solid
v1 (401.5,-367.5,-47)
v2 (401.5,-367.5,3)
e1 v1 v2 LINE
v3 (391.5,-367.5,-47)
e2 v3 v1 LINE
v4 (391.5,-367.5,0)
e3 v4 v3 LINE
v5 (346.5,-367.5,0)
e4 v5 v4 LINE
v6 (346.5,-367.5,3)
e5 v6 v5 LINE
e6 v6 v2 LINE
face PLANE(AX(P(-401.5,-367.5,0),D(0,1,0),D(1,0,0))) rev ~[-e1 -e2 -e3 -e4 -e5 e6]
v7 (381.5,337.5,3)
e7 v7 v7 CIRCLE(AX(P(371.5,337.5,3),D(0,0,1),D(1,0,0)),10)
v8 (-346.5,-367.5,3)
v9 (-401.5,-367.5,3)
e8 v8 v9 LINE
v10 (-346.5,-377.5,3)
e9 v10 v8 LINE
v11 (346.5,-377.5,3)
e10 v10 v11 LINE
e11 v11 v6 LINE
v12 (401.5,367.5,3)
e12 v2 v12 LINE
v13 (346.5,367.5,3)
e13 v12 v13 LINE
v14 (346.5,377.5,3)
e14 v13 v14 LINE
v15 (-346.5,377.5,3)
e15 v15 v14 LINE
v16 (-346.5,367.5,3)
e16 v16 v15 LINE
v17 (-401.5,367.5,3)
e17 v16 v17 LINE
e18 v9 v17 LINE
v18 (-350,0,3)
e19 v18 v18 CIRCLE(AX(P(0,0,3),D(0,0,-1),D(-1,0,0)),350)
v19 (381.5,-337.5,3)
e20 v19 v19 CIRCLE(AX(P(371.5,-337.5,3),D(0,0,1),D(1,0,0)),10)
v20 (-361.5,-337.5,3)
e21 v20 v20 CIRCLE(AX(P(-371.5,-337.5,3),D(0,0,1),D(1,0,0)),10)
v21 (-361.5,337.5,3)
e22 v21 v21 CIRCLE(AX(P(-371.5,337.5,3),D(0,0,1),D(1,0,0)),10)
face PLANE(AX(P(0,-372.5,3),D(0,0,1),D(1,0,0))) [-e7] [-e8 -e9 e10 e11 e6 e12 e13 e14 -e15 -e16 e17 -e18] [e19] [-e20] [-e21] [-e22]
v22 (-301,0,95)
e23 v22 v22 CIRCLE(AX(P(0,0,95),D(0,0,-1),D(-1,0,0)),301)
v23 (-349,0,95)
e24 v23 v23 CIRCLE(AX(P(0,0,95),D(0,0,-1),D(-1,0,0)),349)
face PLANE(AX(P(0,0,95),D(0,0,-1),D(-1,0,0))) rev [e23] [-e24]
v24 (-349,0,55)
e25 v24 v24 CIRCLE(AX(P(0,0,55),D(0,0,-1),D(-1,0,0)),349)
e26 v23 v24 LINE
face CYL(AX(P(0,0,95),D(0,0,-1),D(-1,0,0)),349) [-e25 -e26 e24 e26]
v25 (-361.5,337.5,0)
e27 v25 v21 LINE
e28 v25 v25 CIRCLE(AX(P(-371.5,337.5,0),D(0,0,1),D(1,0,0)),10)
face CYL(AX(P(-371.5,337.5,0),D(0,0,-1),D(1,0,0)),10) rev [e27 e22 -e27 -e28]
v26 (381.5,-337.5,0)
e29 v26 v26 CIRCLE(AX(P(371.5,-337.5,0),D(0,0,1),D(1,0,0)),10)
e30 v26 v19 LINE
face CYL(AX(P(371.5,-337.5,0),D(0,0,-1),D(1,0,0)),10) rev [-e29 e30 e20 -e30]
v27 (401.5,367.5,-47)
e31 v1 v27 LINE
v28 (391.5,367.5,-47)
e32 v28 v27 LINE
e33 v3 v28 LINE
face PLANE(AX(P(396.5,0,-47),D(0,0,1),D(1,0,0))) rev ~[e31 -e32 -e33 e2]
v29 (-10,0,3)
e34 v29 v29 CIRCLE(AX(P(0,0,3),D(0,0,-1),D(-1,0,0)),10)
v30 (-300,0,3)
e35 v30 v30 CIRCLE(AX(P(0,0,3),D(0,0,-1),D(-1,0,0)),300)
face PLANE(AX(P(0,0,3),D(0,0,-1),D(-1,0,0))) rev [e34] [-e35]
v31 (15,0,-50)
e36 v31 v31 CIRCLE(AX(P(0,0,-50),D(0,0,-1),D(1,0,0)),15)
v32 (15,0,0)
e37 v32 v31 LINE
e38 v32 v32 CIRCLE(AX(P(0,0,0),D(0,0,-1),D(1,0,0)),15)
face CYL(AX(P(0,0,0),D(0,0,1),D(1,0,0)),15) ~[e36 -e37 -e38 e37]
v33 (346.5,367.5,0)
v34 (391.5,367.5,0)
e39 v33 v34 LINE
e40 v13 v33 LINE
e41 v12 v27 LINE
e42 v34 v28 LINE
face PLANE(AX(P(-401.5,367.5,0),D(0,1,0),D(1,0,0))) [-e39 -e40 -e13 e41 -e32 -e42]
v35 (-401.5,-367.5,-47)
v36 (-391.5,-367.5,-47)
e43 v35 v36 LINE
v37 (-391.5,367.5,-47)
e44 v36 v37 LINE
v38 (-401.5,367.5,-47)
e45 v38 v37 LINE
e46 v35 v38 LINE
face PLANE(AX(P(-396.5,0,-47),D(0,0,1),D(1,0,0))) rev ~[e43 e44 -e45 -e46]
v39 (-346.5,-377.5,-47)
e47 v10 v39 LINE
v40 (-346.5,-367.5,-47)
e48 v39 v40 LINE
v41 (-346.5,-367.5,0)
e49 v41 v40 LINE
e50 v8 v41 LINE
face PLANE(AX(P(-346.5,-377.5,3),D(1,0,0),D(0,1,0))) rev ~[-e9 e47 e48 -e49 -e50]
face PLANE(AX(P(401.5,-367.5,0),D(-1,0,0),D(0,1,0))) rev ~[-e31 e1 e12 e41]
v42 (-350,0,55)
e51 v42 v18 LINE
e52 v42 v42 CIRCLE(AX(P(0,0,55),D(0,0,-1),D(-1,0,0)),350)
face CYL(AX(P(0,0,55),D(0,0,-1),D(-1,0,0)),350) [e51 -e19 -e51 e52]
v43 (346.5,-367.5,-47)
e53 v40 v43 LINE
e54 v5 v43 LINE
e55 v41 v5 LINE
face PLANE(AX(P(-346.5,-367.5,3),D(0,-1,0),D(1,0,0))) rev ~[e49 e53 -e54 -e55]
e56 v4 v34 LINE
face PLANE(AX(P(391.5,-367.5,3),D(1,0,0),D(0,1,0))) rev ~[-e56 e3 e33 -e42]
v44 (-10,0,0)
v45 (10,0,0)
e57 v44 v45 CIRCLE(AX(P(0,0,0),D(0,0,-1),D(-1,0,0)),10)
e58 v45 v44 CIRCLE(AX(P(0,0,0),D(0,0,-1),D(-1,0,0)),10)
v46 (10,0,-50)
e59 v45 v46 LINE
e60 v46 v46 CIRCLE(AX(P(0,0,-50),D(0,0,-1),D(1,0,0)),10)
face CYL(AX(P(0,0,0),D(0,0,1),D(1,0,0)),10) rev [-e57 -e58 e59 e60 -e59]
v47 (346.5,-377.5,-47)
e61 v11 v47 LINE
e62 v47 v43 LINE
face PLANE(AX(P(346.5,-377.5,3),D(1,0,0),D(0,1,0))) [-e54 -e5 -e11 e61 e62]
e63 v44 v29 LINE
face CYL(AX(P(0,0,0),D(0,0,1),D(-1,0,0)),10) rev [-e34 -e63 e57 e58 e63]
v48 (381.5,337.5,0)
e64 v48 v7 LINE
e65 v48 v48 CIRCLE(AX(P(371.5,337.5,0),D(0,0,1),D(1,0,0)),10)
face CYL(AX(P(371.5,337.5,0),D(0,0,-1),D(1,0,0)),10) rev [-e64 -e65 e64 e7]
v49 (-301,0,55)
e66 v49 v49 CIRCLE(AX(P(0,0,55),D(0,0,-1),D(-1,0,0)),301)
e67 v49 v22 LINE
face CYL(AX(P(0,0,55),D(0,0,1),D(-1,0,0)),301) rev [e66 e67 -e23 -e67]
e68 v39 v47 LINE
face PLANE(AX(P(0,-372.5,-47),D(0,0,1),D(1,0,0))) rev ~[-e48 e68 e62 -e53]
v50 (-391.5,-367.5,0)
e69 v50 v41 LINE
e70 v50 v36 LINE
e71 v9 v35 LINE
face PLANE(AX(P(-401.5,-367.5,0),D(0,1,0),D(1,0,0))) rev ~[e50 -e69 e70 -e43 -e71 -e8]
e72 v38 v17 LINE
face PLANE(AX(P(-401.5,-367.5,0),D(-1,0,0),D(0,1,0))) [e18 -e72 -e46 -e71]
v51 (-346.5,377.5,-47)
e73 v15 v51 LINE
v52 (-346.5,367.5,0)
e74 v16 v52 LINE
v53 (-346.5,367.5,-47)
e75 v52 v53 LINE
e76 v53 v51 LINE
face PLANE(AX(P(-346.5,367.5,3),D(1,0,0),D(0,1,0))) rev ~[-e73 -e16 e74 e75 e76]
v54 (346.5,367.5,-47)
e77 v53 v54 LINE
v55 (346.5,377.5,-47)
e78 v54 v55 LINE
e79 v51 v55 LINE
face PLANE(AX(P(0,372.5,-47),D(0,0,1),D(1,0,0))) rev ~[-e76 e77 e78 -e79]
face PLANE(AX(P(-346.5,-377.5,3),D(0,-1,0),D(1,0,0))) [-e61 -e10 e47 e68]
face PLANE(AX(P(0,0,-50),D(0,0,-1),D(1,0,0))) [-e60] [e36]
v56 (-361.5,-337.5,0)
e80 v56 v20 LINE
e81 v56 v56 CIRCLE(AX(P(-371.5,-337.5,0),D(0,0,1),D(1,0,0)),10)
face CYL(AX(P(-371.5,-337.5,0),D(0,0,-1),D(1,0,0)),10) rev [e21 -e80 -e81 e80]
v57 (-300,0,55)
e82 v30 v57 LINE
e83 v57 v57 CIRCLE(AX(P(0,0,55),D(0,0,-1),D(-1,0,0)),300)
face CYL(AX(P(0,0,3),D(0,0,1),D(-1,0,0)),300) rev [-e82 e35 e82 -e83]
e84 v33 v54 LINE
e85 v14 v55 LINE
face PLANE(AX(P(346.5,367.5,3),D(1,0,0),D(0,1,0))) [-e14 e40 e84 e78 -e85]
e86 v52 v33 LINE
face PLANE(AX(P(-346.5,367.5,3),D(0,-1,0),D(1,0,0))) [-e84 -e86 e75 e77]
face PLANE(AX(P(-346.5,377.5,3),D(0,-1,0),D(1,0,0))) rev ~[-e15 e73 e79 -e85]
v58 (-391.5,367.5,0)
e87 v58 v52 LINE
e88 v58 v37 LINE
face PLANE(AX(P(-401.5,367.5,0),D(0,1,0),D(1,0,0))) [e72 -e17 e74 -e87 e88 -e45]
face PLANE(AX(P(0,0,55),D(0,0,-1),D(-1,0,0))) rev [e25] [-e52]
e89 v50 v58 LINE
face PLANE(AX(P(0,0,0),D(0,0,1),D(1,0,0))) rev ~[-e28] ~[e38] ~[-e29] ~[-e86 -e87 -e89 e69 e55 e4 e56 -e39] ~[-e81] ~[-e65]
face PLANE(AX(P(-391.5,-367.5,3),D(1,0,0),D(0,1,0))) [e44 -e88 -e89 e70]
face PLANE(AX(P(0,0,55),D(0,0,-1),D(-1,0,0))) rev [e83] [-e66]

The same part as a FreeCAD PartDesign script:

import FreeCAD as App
import Part
import Sketcher
Q = App.Units.Quantity

doc = App.newDocument("Part")
body = doc.addObject("PartDesign::Body", "Body")

# Sketch on XZ plane
sketch1 = doc.addObject("Sketcher::SketchObject", "Sketch")
body.addObject(sketch1)
sketch1.AttachmentSupport = (doc.XZ_Plane, [""])
sketch1.MapMode = "FlatFace"
sketch1.addGeometry(Part.LineSegment(App.Vector(-300, 3, 0), App.Vector(-300, 55, 0)), False)
sketch1.addGeometry(Part.LineSegment(App.Vector(-300, 55, 0), App.Vector(-301, 55, 0)), False)
sketch1.addGeometry(Part.LineSegment(App.Vector(-301, 55, 0), App.Vector(-301, 95, 0)), False)
sketch1.addGeometry(Part.LineSegment(App.Vector(-301, 95, 0), App.Vector(-349, 95, 0)), False)
sketch1.addGeometry(Part.LineSegment(App.Vector(-349, 95, 0), App.Vector(-349, 55, 0)), False)
sketch1.addGeometry(Part.LineSegment(App.Vector(-349, 55, 0), App.Vector(-350, 55, 0)), False)
sketch1.addGeometry(Part.LineSegment(App.Vector(-350, 55, 0), App.Vector(-350, 0, 0)), False)
sketch1.addGeometry(Part.LineSegment(App.Vector(-350, 0, 0), App.Vector(-10, 0, 0)), False)
sketch1.addGeometry(Part.LineSegment(App.Vector(-10, 0, 0), App.Vector(-10, 3, 0)), False)
sketch1.addGeometry(Part.LineSegment(App.Vector(-10, 3, 0), App.Vector(-300, 3, 0)), False)
sketch1.addConstraint(Sketcher.Constraint("Coincident", 0, 2, 1, 1))
sketch1.addConstraint(Sketcher.Constraint("Coincident", 1, 2, 2, 1))
sketch1.addConstraint(Sketcher.Constraint("Coincident", 2, 2, 3, 1))
sketch1.addConstraint(Sketcher.Constraint("Coincident", 3, 2, 4, 1))
sketch1.addConstraint(Sketcher.Constraint("Coincident", 4, 2, 5, 1))
sketch1.addConstraint(Sketcher.Constraint("Coincident", 5, 2, 6, 1))
sketch1.addConstraint(Sketcher.Constraint("Coincident", 6, 2, 7, 1))
sketch1.addConstraint(Sketcher.Constraint("Coincident", 7, 2, 8, 1))
sketch1.addConstraint(Sketcher.Constraint("Coincident", 8, 2, 9, 1))
sketch1.addConstraint(Sketcher.Constraint("Coincident", 9, 2, 0, 1))
sketch1.addConstraint(Sketcher.Constraint("Vertical", 0))
sketch1.addConstraint(Sketcher.Constraint("Horizontal", 1))
sketch1.addConstraint(Sketcher.Constraint("Vertical", 2))
sketch1.addConstraint(Sketcher.Constraint("Horizontal", 3))
sketch1.addConstraint(Sketcher.Constraint("Vertical", 4))
sketch1.addConstraint(Sketcher.Constraint("Horizontal", 5))
sketch1.addConstraint(Sketcher.Constraint("Vertical", 6))
sketch1.addConstraint(Sketcher.Constraint("Horizontal", 7))
sketch1.addConstraint(Sketcher.Constraint("Vertical", 8))
sketch1.addConstraint(Sketcher.Constraint("Horizontal", 9))
sketch1.addConstraint(Sketcher.Constraint("PointOnObject", 6, 2, -1))
sketch1.addConstraint(Sketcher.Constraint("Horizontal", 1, 2, 4, 2))
sketch1.addConstraint(Sketcher.Constraint("Equal", 1, 5))
sketch1.addConstraint(Sketcher.Constraint("DistanceX", 1, 2, 1, 1, Q("1 mm")))
sketch1.addConstraint(Sketcher.Constraint("DistanceX", 3, 2, 3, 1, Q("48 mm")))
sketch1.addConstraint(Sketcher.Constraint("DistanceX", 7, 1, 7, 2, Q("340 mm")))
sketch1.addConstraint(Sketcher.Constraint("DistanceY", 0, 1, 0, 2, Q("52 mm")))
sketch1.addConstraint(Sketcher.Constraint("DistanceY", 2, 1, 2, 2, Q("40 mm")))
sketch1.addConstraint(Sketcher.Constraint("DistanceY", 6, 2, 6, 1, Q("55 mm")))
sketch1.addConstraint(Sketcher.Constraint("DistanceX", 0, 2, -1, 1, Q("300 mm")))
revolution = doc.addObject("PartDesign::Revolution", "Revolution")
body.addObject(revolution)
revolution.Profile = sketch1
revolution.ReferenceAxis = (sketch1, ["V_Axis"])
revolution.Angle = 360

# Sketch on XY plane
sketch2 = doc.addObject("Sketcher::SketchObject", "Sketch001")
body.addObject(sketch2)
sketch2.AttachmentSupport = (doc.XY_Plane, [""])
sketch2.MapMode = "FlatFace"
sketch2.addGeometry(Part.LineSegment(App.Vector(-402, 368, 0), App.Vector(-402, -368, 0)), False)
sketch2.addGeometry(Part.LineSegment(App.Vector(-402, -368, 0), App.Vector(402, -368, 0)), False)
sketch2.addGeometry(Part.LineSegment(App.Vector(402, -368, 0), App.Vector(402, 368, 0)), False)
sketch2.addGeometry(Part.LineSegment(App.Vector(402, 368, 0), App.Vector(-402, 368, 0)), False)
sketch2.addGeometry(Part.Circle(App.Vector(-372, -338, 0), App.Vector(0, 0, 1), 10), False)
sketch2.addGeometry(Part.Circle(App.Vector(372, -338, 0), App.Vector(0, 0, 1), 10), False)
sketch2.addGeometry(Part.Circle(App.Vector(-372, 338, 0), App.Vector(0, 0, 1), 10), False)
sketch2.addGeometry(Part.Circle(App.Vector(0, 0, 0), App.Vector(0, 0, 1), 301), False)
sketch2.addGeometry(Part.Circle(App.Vector(372, 338, 0), App.Vector(0, 0, 1), 10), False)
sketch2.addConstraint(Sketcher.Constraint("Coincident", 0, 2, 1, 1))
sketch2.addConstraint(Sketcher.Constraint("Coincident", 1, 2, 2, 1))
sketch2.addConstraint(Sketcher.Constraint("Coincident", 2, 2, 3, 1))
sketch2.addConstraint(Sketcher.Constraint("Coincident", 3, 2, 0, 1))
sketch2.addConstraint(Sketcher.Constraint("Vertical", 0))
sketch2.addConstraint(Sketcher.Constraint("Horizontal", 1))
sketch2.addConstraint(Sketcher.Constraint("Vertical", 2))
sketch2.addConstraint(Sketcher.Constraint("Horizontal", 3))
sketch2.addConstraint(Sketcher.Constraint("Coincident", 7, 3, -1, 1))
sketch2.addConstraint(Sketcher.Constraint("Equal", 4, 5))
sketch2.addConstraint(Sketcher.Constraint("Equal", 5, 6))
sketch2.addConstraint(Sketcher.Constraint("Equal", 6, 8))
sketch2.addConstraint(Sketcher.Constraint("Symmetric", 5, 3, 6, 3, -1, 1))
sketch2.addConstraint(Sketcher.Constraint("Symmetric", 4, 3, 8, 3, -1, 1))
sketch2.addConstraint(Sketcher.Constraint("Symmetric", 0, 2, 2, 2, -1, 1))
sketch2.addConstraint(Sketcher.Constraint("Symmetric", 4, 3, 5, 3, -2))
sketch2.addConstraint(Sketcher.Constraint("Diameter", 4, Q("20 mm")))
sketch2.addConstraint(Sketcher.Constraint("Diameter", 7, Q("602 mm")))
sketch2.addConstraint(Sketcher.Constraint("DistanceX", 1, 1, 1, 2, Q("803 mm")))
sketch2.addConstraint(Sketcher.Constraint("DistanceY", 0, 2, 0, 1, Q("735 mm")))
sketch2.addConstraint(Sketcher.Constraint("DistanceX", 4, 3, 5, 3, Q("743 mm")))
sketch2.addConstraint(Sketcher.Constraint("DistanceY", 4, 3, 6, 3, Q("675 mm")))
pad1 = doc.addObject("PartDesign::Pad", "Pad")
body.addObject(pad1)
pad1.Profile = sketch2
pad1.Length = 3

# Sketch on XY plane
sketch3 = doc.addObject("Sketcher::SketchObject", "Sketch002")
body.addObject(sketch3)
sketch3.AttachmentSupport = (doc.XY_Plane, [""])
sketch3.MapMode = "FlatFace"
sketch3.AttachmentOffset = App.Placement(App.Vector(0, 0, 3), App.Rotation())
sketch3.addGeometry(Part.LineSegment(App.Vector(-346, -368, 0), App.Vector(-346, -378, 0)), False)
sketch3.addGeometry(Part.LineSegment(App.Vector(-346, -378, 0), App.Vector(346, -378, 0)), False)
sketch3.addGeometry(Part.LineSegment(App.Vector(346, -378, 0), App.Vector(346, -368, 0)), False)
sketch3.addGeometry(Part.LineSegment(App.Vector(346, -368, 0), App.Vector(-346, -368, 0)), False)
sketch3.addGeometry(Part.LineSegment(App.Vector(-402, 368, 0), App.Vector(-402, -368, 0)), False)
sketch3.addGeometry(Part.LineSegment(App.Vector(-402, -368, 0), App.Vector(-392, -368, 0)), False)
sketch3.addGeometry(Part.LineSegment(App.Vector(-392, -368, 0), App.Vector(-392, 368, 0)), False)
sketch3.addGeometry(Part.LineSegment(App.Vector(-392, 368, 0), App.Vector(-402, 368, 0)), False)
sketch3.addGeometry(Part.LineSegment(App.Vector(-346, 378, 0), App.Vector(-346, 368, 0)), False)
sketch3.addGeometry(Part.LineSegment(App.Vector(-346, 368, 0), App.Vector(346, 368, 0)), False)
sketch3.addGeometry(Part.LineSegment(App.Vector(346, 368, 0), App.Vector(346, 378, 0)), False)
sketch3.addGeometry(Part.LineSegment(App.Vector(346, 378, 0), App.Vector(-346, 378, 0)), False)
sketch3.addGeometry(Part.LineSegment(App.Vector(392, 368, 0), App.Vector(392, -368, 0)), False)
sketch3.addGeometry(Part.LineSegment(App.Vector(392, -368, 0), App.Vector(402, -368, 0)), False)
sketch3.addGeometry(Part.LineSegment(App.Vector(402, -368, 0), App.Vector(402, 368, 0)), False)
sketch3.addGeometry(Part.LineSegment(App.Vector(402, 368, 0), App.Vector(392, 368, 0)), False)
sketch3.addConstraint(Sketcher.Constraint("Coincident", 0, 2, 1, 1))
sketch3.addConstraint(Sketcher.Constraint("Coincident", 1, 2, 2, 1))
sketch3.addConstraint(Sketcher.Constraint("Coincident", 2, 2, 3, 1))
sketch3.addConstraint(Sketcher.Constraint("Coincident", 3, 2, 0, 1))
sketch3.addConstraint(Sketcher.Constraint("Coincident", 4, 2, 5, 1))
sketch3.addConstraint(Sketcher.Constraint("Coincident", 5, 2, 6, 1))
sketch3.addConstraint(Sketcher.Constraint("Coincident", 6, 2, 7, 1))
sketch3.addConstraint(Sketcher.Constraint("Coincident", 7, 2, 4, 1))
sketch3.addConstraint(Sketcher.Constraint("Coincident", 8, 2, 9, 1))
sketch3.addConstraint(Sketcher.Constraint("Coincident", 9, 2, 10, 1))
sketch3.addConstraint(Sketcher.Constraint("Coincident", 10, 2, 11, 1))
sketch3.addConstraint(Sketcher.Constraint("Coincident", 11, 2, 8, 1))
sketch3.addConstraint(Sketcher.Constraint("Coincident", 12, 2, 13, 1))
sketch3.addConstraint(Sketcher.Constraint("Coincident", 13, 2, 14, 1))
sketch3.addConstraint(Sketcher.Constraint("Coincident", 14, 2, 15, 1))
sketch3.addConstraint(Sketcher.Constraint("Coincident", 15, 2, 12, 1))
sketch3.addConstraint(Sketcher.Constraint("Vertical", 0))
sketch3.addConstraint(Sketcher.Constraint("Horizontal", 1))
sketch3.addConstraint(Sketcher.Constraint("Vertical", 2))
sketch3.addConstraint(Sketcher.Constraint("Horizontal", 3))
sketch3.addConstraint(Sketcher.Constraint("Vertical", 4))
sketch3.addConstraint(Sketcher.Constraint("Horizontal", 5))
sketch3.addConstraint(Sketcher.Constraint("Vertical", 6))
sketch3.addConstraint(Sketcher.Constraint("Horizontal", 7))
sketch3.addConstraint(Sketcher.Constraint("Vertical", 8))
sketch3.addConstraint(Sketcher.Constraint("Horizontal", 9))
sketch3.addConstraint(Sketcher.Constraint("Vertical", 10))
sketch3.addConstraint(Sketcher.Constraint("Horizontal", 11))
sketch3.addConstraint(Sketcher.Constraint("Vertical", 12))
sketch3.addConstraint(Sketcher.Constraint("Horizontal", 13))
sketch3.addConstraint(Sketcher.Constraint("Vertical", 14))
sketch3.addConstraint(Sketcher.Constraint("Horizontal", 15))
sketch3.addConstraint(Sketcher.Constraint("Symmetric", 2, 2, 8, 2, -1, 1))
sketch3.addConstraint(Sketcher.Constraint("Symmetric", 0, 2, 10, 2, -1, 1))
sketch3.addConstraint(Sketcher.Constraint("Symmetric", 6, 2, 12, 2, -1, 1))
sketch3.addConstraint(Sketcher.Constraint("Symmetric", 4, 2, 14, 2, -1, 1))
sketch3.addConstraint(Sketcher.Constraint("Horizontal", 3, 2, 4, 2))
sketch3.addConstraint(Sketcher.Constraint("Horizontal", 7, 2, 8, 2))
sketch3.addConstraint(Sketcher.Constraint("Vertical", 3, 2, 8, 2))
sketch3.addConstraint(Sketcher.Constraint("Equal", 15, 0))
sketch3.addConstraint(Sketcher.Constraint("DistanceX", 1, 1, 1, 2, Q("693 mm")))
sketch3.addConstraint(Sketcher.Constraint("DistanceX", 5, 1, 5, 2, Q("10 mm")))
sketch3.addConstraint(Sketcher.Constraint("DistanceY", 4, 2, 4, 1, Q("735 mm")))
sketch3.addConstraint(Sketcher.Constraint("DistanceX", 4, 2, 3, 2, Q("55 mm")))
pad2 = doc.addObject("PartDesign::Pad", "Pad001")
body.addObject(pad2)
pad2.Profile = sketch3
pad2.Length = 50
pad2.Reversed = True

# Sketch on XY plane
sketch4 = doc.addObject("Sketcher::SketchObject", "Sketch003")
body.addObject(sketch4)
sketch4.AttachmentSupport = (doc.XY_Plane, [""])
sketch4.MapMode = "FlatFace"
sketch4.addGeometry(Part.Circle(App.Vector(0, 0, 0), App.Vector(0, 0, 1), 15), False)
sketch4.addGeometry(Part.Circle(App.Vector(0, 0, 0), App.Vector(0, 0, 1), 10), False)
sketch4.addConstraint(Sketcher.Constraint("Coincident", 0, 3, -1, 1))
sketch4.addConstraint(Sketcher.Constraint("Coincident", 1, 3, -1, 1))
sketch4.addConstraint(Sketcher.Constraint("Diameter", 0, Q("30 mm")))
sketch4.addConstraint(Sketcher.Constraint("Diameter", 1, Q("20 mm")))
pad3 = doc.addObject("PartDesign::Pad", "Pad002")
body.addObject(pad3)
pad3.Profile = sketch4
pad3.Length = 50
pad3.Reversed = True

doc.recompute()
